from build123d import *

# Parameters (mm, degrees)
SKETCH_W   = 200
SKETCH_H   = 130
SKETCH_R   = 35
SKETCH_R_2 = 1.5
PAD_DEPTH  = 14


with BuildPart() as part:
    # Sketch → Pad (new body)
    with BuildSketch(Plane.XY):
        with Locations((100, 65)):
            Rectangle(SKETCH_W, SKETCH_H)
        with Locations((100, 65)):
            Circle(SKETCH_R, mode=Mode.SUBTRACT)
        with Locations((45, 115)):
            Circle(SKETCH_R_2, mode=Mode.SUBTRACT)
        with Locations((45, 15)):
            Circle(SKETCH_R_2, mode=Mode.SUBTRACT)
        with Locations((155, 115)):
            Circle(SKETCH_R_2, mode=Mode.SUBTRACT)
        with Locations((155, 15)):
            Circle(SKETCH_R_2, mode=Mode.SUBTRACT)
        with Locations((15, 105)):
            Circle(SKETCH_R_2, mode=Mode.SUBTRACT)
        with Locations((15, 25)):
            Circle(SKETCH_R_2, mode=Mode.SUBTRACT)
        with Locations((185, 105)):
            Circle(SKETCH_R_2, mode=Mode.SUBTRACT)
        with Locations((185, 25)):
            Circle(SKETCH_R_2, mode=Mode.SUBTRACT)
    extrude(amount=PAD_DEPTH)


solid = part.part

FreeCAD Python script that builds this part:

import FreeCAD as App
import Part
import Sketcher


def add_polygon(sketch, points):
    """Adds a closed chain of lines whose ends are joined by coincident constraints."""
    first, n = sketch.GeometryCount, len(points)
    for a, b in zip(points, points[1:] + points[:1]):
        sketch.addGeometry(Part.LineSegment(App.Vector(*a, 0), App.Vector(*b, 0)), False)
    for i in range(n):
        sketch.addConstraint(Sketcher.Constraint("Coincident", first + i, 2, first + (i + 1) % n, 1))

doc = App.newDocument("Part")
body = doc.addObject("PartDesign::Body", "Body")

sketch1 = body.newObject("Sketcher::SketchObject", "Sketch")
sketch1.AttachmentSupport = (doc.getObject("XY_Plane"), [""])
sketch1.MapMode = "FlatFace"
add_polygon(sketch1, [(0, 130), (0, 0), (200, 0), (200, 130)])
sketch1.addGeometry(Part.Circle(App.Vector(15, 25, 0), App.Vector(0, 0, 1), 1.5), False)
sketch1.addGeometry(Part.Circle(App.Vector(45, 15, 0), App.Vector(0, 0, 1), 1.5), False)
sketch1.addGeometry(Part.Circle(App.Vector(155, 15, 0), App.Vector(0, 0, 1), 1.5), False)
sketch1.addGeometry(Part.Circle(App.Vector(185, 25, 0), App.Vector(0, 0, 1), 1.5), False)
sketch1.addGeometry(Part.Circle(App.Vector(100, 65, 0), App.Vector(0, 0, 1), 35), False)
sketch1.addGeometry(Part.Circle(App.Vector(15, 105, 0), App.Vector(0, 0, 1), 1.5), False)
sketch1.addGeometry(Part.Circle(App.Vector(45, 115, 0), App.Vector(0, 0, 1), 1.5), False)
sketch1.addGeometry(Part.Circle(App.Vector(155, 115, 0), App.Vector(0, 0, 1), 1.5), False)
sketch1.addGeometry(Part.Circle(App.Vector(185, 105, 0), App.Vector(0, 0, 1), 1.5), False)
sketch1.addConstraint([
    Sketcher.Constraint("Vertical", 0),
    Sketcher.Constraint("Horizontal", 1),
    Sketcher.Constraint("Vertical", 2),
    Sketcher.Constraint("Horizontal", 3),
    Sketcher.Constraint("Coincident", 0, 2, -1, 1),
    Sketcher.Constraint("Equal", 4, 5),
    Sketcher.Constraint("Equal", 5, 6),
    Sketcher.Constraint("Equal", 6, 7),
    Sketcher.Constraint("Equal", 7, 9),
    Sketcher.Constraint("Equal", 9, 10),
    Sketcher.Constraint("Equal", 10, 11),
    Sketcher.Constraint("Equal", 11, 12),
    Sketcher.Constraint("Horizontal", 5, 3, 6, 3),
    Sketcher.Constraint("Horizontal", 4, 3, 7, 3),
    Sketcher.Constraint("Horizontal", 10, 3, 11, 3),
    Sketcher.Constraint("Horizontal", 9, 3, 12, 3),
    Sketcher.Constraint("Vertical", 4, 3, 9, 3),
    Sketcher.Constraint("Vertical", 5, 3, 10, 3),
    Sketcher.Constraint("Vertical", 6, 3, 11, 3),
    Sketcher.Constraint("Vertical", 7, 3, 12, 3),
    Sketcher.Constraint("Diameter", 4, 3.0),
    Sketcher.Constraint("Diameter", 8, 70.0),
    Sketcher.Constraint("DistanceX", 1, 1, 1, 2, 200.0),
    Sketcher.Constraint("DistanceY", 0, 2, 0, 1, 130.0),
    Sketcher.Constraint("DistanceX", -1, 1, 4, 3, 15.0),
    Sketcher.Constraint("DistanceY", -1, 1, 4, 3, 25.0),
    Sketcher.Constraint("DistanceX", -1, 1, 5, 3, 45.0),
    Sketcher.Constraint("DistanceY", -1, 1, 5, 3, 15.0),
    Sketcher.Constraint("DistanceX", -1, 1, 6, 3, 155.0),
    Sketcher.Constraint("DistanceX", -1, 1, 7, 3, 185.0),
    Sketcher.Constraint("DistanceX", -1, 1, 8, 3, 100.0),
    Sketcher.Constraint("DistanceY", -1, 1, 8, 3, 65.0),
    Sketcher.Constraint("DistanceY", -1, 1, 9, 3, 105.0),
    Sketcher.Constraint("DistanceY", -1, 1, 10, 3, 115.0),
])
pad1 = body.newObject("PartDesign::Pad", "Pad")
pad1.Profile = sketch1
pad1.Length = 14

doc.recompute()
